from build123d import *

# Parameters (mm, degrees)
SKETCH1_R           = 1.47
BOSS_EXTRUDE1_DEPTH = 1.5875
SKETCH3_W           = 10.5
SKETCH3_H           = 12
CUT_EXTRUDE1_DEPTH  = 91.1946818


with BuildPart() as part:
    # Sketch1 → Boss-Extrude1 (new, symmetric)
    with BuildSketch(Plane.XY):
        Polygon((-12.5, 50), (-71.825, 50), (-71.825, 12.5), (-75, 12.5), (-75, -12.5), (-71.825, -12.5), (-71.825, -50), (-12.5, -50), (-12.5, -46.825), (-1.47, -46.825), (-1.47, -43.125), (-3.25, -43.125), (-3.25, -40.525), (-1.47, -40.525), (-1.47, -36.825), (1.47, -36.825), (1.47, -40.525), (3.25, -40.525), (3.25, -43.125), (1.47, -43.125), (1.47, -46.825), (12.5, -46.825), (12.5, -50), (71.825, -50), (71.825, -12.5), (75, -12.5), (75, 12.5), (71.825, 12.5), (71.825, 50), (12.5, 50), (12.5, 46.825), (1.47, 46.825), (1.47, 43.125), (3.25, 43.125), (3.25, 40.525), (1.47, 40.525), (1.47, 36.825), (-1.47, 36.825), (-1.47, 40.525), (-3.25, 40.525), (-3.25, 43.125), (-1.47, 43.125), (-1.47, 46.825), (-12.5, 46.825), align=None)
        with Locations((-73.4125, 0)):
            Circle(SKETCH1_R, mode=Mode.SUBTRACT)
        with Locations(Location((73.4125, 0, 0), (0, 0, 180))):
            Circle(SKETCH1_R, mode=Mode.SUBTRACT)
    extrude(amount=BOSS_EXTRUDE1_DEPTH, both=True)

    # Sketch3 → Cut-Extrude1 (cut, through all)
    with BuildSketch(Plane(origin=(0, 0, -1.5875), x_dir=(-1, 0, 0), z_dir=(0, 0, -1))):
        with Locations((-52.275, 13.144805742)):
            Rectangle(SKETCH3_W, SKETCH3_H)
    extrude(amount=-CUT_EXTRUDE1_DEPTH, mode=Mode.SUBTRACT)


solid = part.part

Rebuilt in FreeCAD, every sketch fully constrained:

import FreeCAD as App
import Part
import Sketcher

V = App.Vector
Q = App.Units.Quantity

doc = App.newDocument("Part")
params = doc.addObject("Spreadsheet::Sheet", "Params")
for row, (alias, value) in enumerate([
    ("sketch1_diameter", "2.94 mm"),
    ("sketch1_height", "25 mm"),
    ("sketch1_height2", "37.5 mm"),
    ("sketch1_height3", "3.7 mm"),
    ("sketch1_height4", "2.6 mm"),
    ("pad1_length", "3.175 mm"),
    ("sketch2_height", "12 mm"),
    ("sketch2_width", "10.5 mm"),
], start=1):
    params.set(f"A{row}", alias)
    params.set(f"B{row}", "=" + value)
    params.setAlias(f"B{row}", alias)

body = doc.addObject("PartDesign::Body", "Body")

# Sketch on XY plane
sketch1 = doc.addObject("Sketcher::SketchObject", "Sketch")
body.addObject(sketch1)
sketch1.AttachmentSupport = (doc.XY_Plane, [""])
sketch1.MapMode = "FlatFace"
sketch1.addGeometry(Part.LineSegment(V(-12.5, 50, 0), V(-71.825, 50, 0)), False)
sketch1.addGeometry(Part.LineSegment(V(-71.825, 50, 0), V(-71.825, 12.5, 0)), False)
sketch1.addGeometry(Part.LineSegment(V(-71.825, 12.5, 0), V(-75, 12.5, 0)), False)
sketch1.addGeometry(Part.LineSegment(V(-75, 12.5, 0), V(-75, -12.5, 0)), False)
sketch1.addGeometry(Part.LineSegment(V(-75, -12.5, 0), V(-71.825, -12.5, 0)), False)
sketch1.addGeometry(Part.LineSegment(V(-71.825, -12.5, 0), V(-71.825, -50, 0)), False)
sketch1.addGeometry(Part.LineSegment(V(-71.825, -50, 0), V(-12.5, -50, 0)), False)
sketch1.addGeometry(Part.LineSegment(V(-12.5, -50, 0), V(-12.5, -46.825, 0)), False)
sketch1.addGeometry(Part.LineSegment(V(-12.5, -46.825, 0), V(-1.47, -46.825, 0)), False)
sketch1.addGeometry(Part.LineSegment(V(-1.47, -46.825, 0), V(-1.47, -43.125, 0)), False)
sketch1.addGeometry(Part.LineSegment(V(-1.47, -43.125, 0), V(-3.25, -43.125, 0)), False)
sketch1.addGeometry(Part.LineSegment(V(-3.25, -43.125, 0), V(-3.25, -40.525, 0)), False)
sketch1.addGeometry(Part.LineSegment(V(-3.25, -40.525, 0), V(-1.47, -40.525, 0)), False)
sketch1.addGeometry(Part.LineSegment(V(-1.47, -40.525, 0), V(-1.47, -36.825, 0)), False)
sketch1.addGeometry(Part.LineSegment(V(-1.47, -36.825, 0), V(1.47, -36.825, 0)), False)
sketch1.addGeometry(Part.LineSegment(V(1.47, -36.825, 0), V(1.47, -40.525, 0)), False)
sketch1.addGeometry(Part.LineSegment(V(1.47, -40.525, 0), V(3.25, -40.525, 0)), False)
sketch1.addGeometry(Part.LineSegment(V(3.25, -40.525, 0), V(3.25, -43.125, 0)), False)
sketch1.addGeometry(Part.LineSegment(V(3.25, -43.125, 0), V(1.47, -43.125, 0)), False)
sketch1.addGeometry(Part.LineSegment(V(1.47, -43.125, 0), V(1.47, -46.825, 0)), False)
sketch1.addGeometry(Part.LineSegment(V(1.47, -46.825, 0), V(12.5, -46.825, 0)), False)
sketch1.addGeometry(Part.LineSegment(V(12.5, -46.825, 0), V(12.5, -50, 0)), False)
sketch1.addGeometry(Part.LineSegment(V(12.5, -50, 0), V(71.825, -50, 0)), False)
sketch1.addGeometry(Part.LineSegment(V(71.825, -50, 0), V(71.825, -12.5, 0)), False)
sketch1.addGeometry(Part.LineSegment(V(71.825, -12.5, 0), V(75, -12.5, 0)), False)
sketch1.addGeometry(Part.LineSegment(V(75, -12.5, 0), V(75, 12.5, 0)), False)
sketch1.addGeometry(Part.LineSegment(V(75, 12.5, 0), V(71.825, 12.5, 0)), False)
sketch1.addGeometry(Part.LineSegment(V(71.825, 12.5, 0), V(71.825, 50, 0)), False)
sketch1.addGeometry(Part.LineSegment(V(71.825, 50, 0), V(12.5, 50, 0)), False)
sketch1.addGeometry(Part.LineSegment(V(12.5, 50, 0), V(12.5, 46.825, 0)), False)
sketch1.addGeometry(Part.LineSegment(V(12.5, 46.825, 0), V(1.47, 46.825, 0)), False)
sketch1.addGeometry(Part.LineSegment(V(1.47, 46.825, 0), V(1.47, 43.125, 0)), False)
sketch1.addGeometry(Part.LineSegment(V(1.47, 43.125, 0), V(3.25, 43.125, 0)), False)
sketch1.addGeometry(Part.LineSegment(V(3.25, 43.125, 0), V(3.25, 40.525, 0)), False)
sketch1.addGeometry(Part.LineSegment(V(3.25, 40.525, 0), V(1.47, 40.525, 0)), False)
sketch1.addGeometry(Part.LineSegment(V(1.47, 40.525, 0), V(1.47, 36.825, 0)), False)
sketch1.addGeometry(Part.LineSegment(V(1.47, 36.825, 0), V(-1.47, 36.825, 0)), False)
sketch1.addGeometry(Part.LineSegment(V(-1.47, 36.825, 0), V(-1.47, 40.525, 0)), False)
sketch1.addGeometry(Part.LineSegment(V(-1.47, 40.525, 0), V(-3.25, 40.525, 0)), False)
sketch1.addGeometry(Part.LineSegment(V(-3.25, 40.525, 0), V(-3.25, 43.125, 0)), False)
sketch1.addGeometry(Part.LineSegment(V(-3.25, 43.125, 0), V(-1.47, 43.125, 0)), False)
sketch1.addGeometry(Part.LineSegment(V(-1.47, 43.125, 0), V(-1.47, 46.825, 0)), False)
sketch1.addGeometry(Part.LineSegment(V(-1.47, 46.825, 0), V(-12.5, 46.825, 0)), False)
sketch1.addGeometry(Part.LineSegment(V(-12.5, 46.825, 0), V(-12.5, 50, 0)), False)
sketch1.addGeometry(Part.Circle(V(-73.4125, 0, 0), V(0, 0, 1), 1.47), False)
sketch1.addGeometry(Part.Circle(V(73.4125, 0, 0), V(0, 0, 1), 1.47), False)
sketch1.addConstraint(Sketcher.Constraint("Coincident", 0, 2, 1, 1))
sketch1.addConstraint(Sketcher.Constraint("Coincident", 1, 2, 2, 1))
sketch1.addConstraint(Sketcher.Constraint("Coincident", 2, 2, 3, 1))
sketch1.addConstraint(Sketcher.Constraint("Coincident", 3, 2, 4, 1))
sketch1.addConstraint(Sketcher.Constraint("Coincident", 4, 2, 5, 1))
sketch1.addConstraint(Sketcher.Constraint("Coincident", 5, 2, 6, 1))
sketch1.addConstraint(Sketcher.Constraint("Coincident", 6, 2, 7, 1))
sketch1.addConstraint(Sketcher.Constraint("Coincident", 7, 2, 8, 1))
sketch1.addConstraint(Sketcher.Constraint("Coincident", 8, 2, 9, 1))
sketch1.addConstraint(Sketcher.Constraint("Coincident", 9, 2, 10, 1))
sketch1.addConstraint(Sketcher.Constraint("Coincident", 10, 2, 11, 1))
sketch1.addConstraint(Sketcher.Constraint("Coincident", 11, 2, 12, 1))
sketch1.addConstraint(Sketcher.Constraint("Coincident", 12, 2, 13, 1))
sketch1.addConstraint(Sketcher.Constraint("Coincident", 13, 2, 14, 1))
sketch1.addConstraint(Sketcher.Constraint("Coincident", 14, 2, 15, 1))
sketch1.addConstraint(Sketcher.Constraint("Coincident", 15, 2, 16, 1))
sketch1.addConstraint(Sketcher.Constraint("Coincident", 16, 2, 17, 1))
sketch1.addConstraint(Sketcher.Constraint("Coincident", 17, 2, 18, 1))
sketch1.addConstraint(Sketcher.Constraint("Coincident", 18, 2, 19, 1))
sketch1.addConstraint(Sketcher.Constraint("Coincident", 19, 2, 20, 1))
sketch1.addConstraint(Sketcher.Constraint("Coincident", 20, 2, 21, 1))
sketch1.addConstraint(Sketcher.Constraint("Coincident", 21, 2, 22, 1))
sketch1.addConstraint(Sketcher.Constraint("Coincident", 22, 2, 23, 1))
sketch1.addConstraint(Sketcher.Constraint("Coincident", 23, 2, 24, 1))
sketch1.addConstraint(Sketcher.Constraint("Coincident", 24, 2, 25, 1))
sketch1.addConstraint(Sketcher.Constraint("Coincident", 25, 2, 26, 1))
sketch1.addConstraint(Sketcher.Constraint("Coincident", 26, 2, 27, 1))
sketch1.addConstraint(Sketcher.Constraint("Coincident", 27, 2, 28, 1))
sketch1.addConstraint(Sketcher.Constraint("Coincident", 28, 2, 29, 1))
sketch1.addConstraint(Sketcher.Constraint("Coincident", 29, 2, 30, 1))
sketch1.addConstraint(Sketcher.Constraint("Coincident", 30, 2, 31, 1))
sketch1.addConstraint(Sketcher.Constraint("Coincident", 31, 2, 32, 1))
sketch1.addConstraint(Sketcher.Constraint("Coincident", 32, 2, 33, 1))
sketch1.addConstraint(Sketcher.Constraint("Coincident", 33, 2, 34, 1))
sketch1.addConstraint(Sketcher.Constraint("Coincident", 34, 2, 35, 1))
sketch1.addConstraint(Sketcher.Constraint("Coincident", 35, 2, 36, 1))
sketch1.addConstraint(Sketcher.Constraint("Coincident", 36, 2, 37, 1))
sketch1.addConstraint(Sketcher.Constraint("Coincident", 37, 2, 38, 1))
sketch1.addConstraint(Sketcher.Constraint("Coincident", 38, 2, 39, 1))
sketch1.addConstraint(Sketcher.Constraint("Coincident", 39, 2, 40, 1))
sketch1.addConstraint(Sketcher.Constraint("Coincident", 40, 2, 41, 1))
sketch1.addConstraint(Sketcher.Constraint("Coincident", 41, 2, 42, 1))
sketch1.addConstraint(Sketcher.Constraint("Coincident", 42, 2, 43, 1))
sketch1.addConstraint(Sketcher.Constraint("Coincident", 43, 2, 0, 1))
sketch1.addConstraint(Sketcher.Constraint("Horizontal", 0))
sketch1.addConstraint(Sketcher.Constraint("Vertical", 1))
sketch1.addConstraint(Sketcher.Constraint("Horizontal", 2))
sketch1.addConstraint(Sketcher.Constraint("Vertical", 3))
sketch1.addConstraint(Sketcher.Constraint("Horizontal", 4))
sketch1.addConstraint(Sketcher.Constraint("Vertical", 5))
sketch1.addConstraint(Sketcher.Constraint("Horizontal", 6))
sketch1.addConstraint(Sketcher.Constraint("Vertical", 7))
sketch1.addConstraint(Sketcher.Constraint("Horizontal", 8))
sketch1.addConstraint(Sketcher.Constraint("Vertical", 9))
sketch1.addConstraint(Sketcher.Constraint("Horizontal", 10))
sketch1.addConstraint(Sketcher.Constraint("Vertical", 11))
sketch1.addConstraint(Sketcher.Constraint("Horizontal", 12))
sketch1.addConstraint(Sketcher.Constraint("Vertical", 13))
sketch1.addConstraint(Sketcher.Constraint("Horizontal", 14))
sketch1.addConstraint(Sketcher.Constraint("Vertical", 15))
sketch1.addConstraint(Sketcher.Constraint("Horizontal", 16))
sketch1.addConstraint(Sketcher.Constraint("Vertical", 17))
sketch1.addConstraint(Sketcher.Constraint("Horizontal", 18))
sketch1.addConstraint(Sketcher.Constraint("Vertical", 19))
sketch1.addConstraint(Sketcher.Constraint("Horizontal", 20))
sketch1.addConstraint(Sketcher.Constraint("Vertical", 21))
sketch1.addConstraint(Sketcher.Constraint("Horizontal", 22))
sketch1.addConstraint(Sketcher.Constraint("Vertical", 23))
sketch1.addConstraint(Sketcher.Constraint("Horizontal", 24))
sketch1.addConstraint(Sketcher.Constraint("Vertical", 25))
sketch1.addConstraint(Sketcher.Constraint("Horizontal", 26))
sketch1.addConstraint(Sketcher.Constraint("Vertical", 27))
sketch1.addConstraint(Sketcher.Constraint("Horizontal", 28))
sketch1.addConstraint(Sketcher.Constraint("Vertical", 29))
sketch1.addConstraint(Sketcher.Constraint("Horizontal", 30))
sketch1.addConstraint(Sketcher.Constraint("Vertical", 31))
sketch1.addConstraint(Sketcher.Constraint("Horizontal", 32))
sketch1.addConstraint(Sketcher.Constraint("Vertical", 33))
sketch1.addConstraint(Sketcher.Constraint("Horizontal", 34))
sketch1.addConstraint(Sketcher.Constraint("Vertical", 35))
sketch1.addConstraint(Sketcher.Constraint("Horizontal", 36))
sketch1.addConstraint(Sketcher.Constraint("Vertical", 37))
sketch1.addConstraint(Sketcher.Constraint("Horizontal", 38))
sketch1.addConstraint(Sketcher.Constraint("Vertical", 39))
sketch1.addConstraint(Sketcher.Constraint("Horizontal", 40))
sketch1.addConstraint(Sketcher.Constraint("Vertical", 41))
sketch1.addConstraint(Sketcher.Constraint("Horizontal", 42))
sketch1.addConstraint(Sketcher.Constraint("Vertical", 43))
sketch1.addConstraint(Sketcher.Constraint("Equal", 44, 45))
sketch1.addConstraint(Sketcher.Constraint("Symmetric", 44, 3, 45, 3, -1, 1))
sketch1.addConstraint(Sketcher.Constraint("Symmetric", 0, 2, 22, 2, -1, 1))
sketch1.addConstraint(Sketcher.Constraint("Symmetric", 2, 2, 24, 2, -1, 1))
sketch1.addConstraint(Sketcher.Constraint("Symmetric", 4, 2, 26, 2, -1, 1))
sketch1.addConstraint(Sketcher.Constraint("Symmetric", 6, 2, 28, 2, -1, 1))
sketch1.addConstraint(Sketcher.Constraint("Symmetric", 8, 2, 30, 2, -1, 1))
sketch1.addConstraint(Sketcher.Constraint("Symmetric", 10, 2, 32, 2, -1, 1))
sketch1.addConstraint(Sketcher.Constraint("Symmetric", 12, 2, 34, 2, -1, 1))
sketch1.addConstraint(Sketcher.Constraint("Symmetric", 14, 2, 36, 2, -1, 1))
sketch1.addConstraint(Sketcher.Constraint("Symmetric", 16, 2, 38, 2, -1, 1))
sketch1.addConstraint(Sketcher.Constraint("Symmetric", 18, 2, 40, 2, -1, 1))
sketch1.addConstraint(Sketcher.Constraint("Symmetric", 20, 2, 42, 2, -1, 1))
sketch1.addConstraint(Sketcher.Constraint("Symmetric", 12, 2, 15, 2, -2))
sketch1.addConstraint(Sketcher.Constraint("Symmetric", 10, 2, 17, 2, -2))
sketch1.addConstraint(Sketcher.Constraint("Symmetric", 8, 2, 19, 2, -2))
sketch1.addConstraint(Sketcher.Constraint("Symmetric", 6, 2, 21, 2, -2))
sketch1.addConstraint(Sketcher.Constraint("Symmetric", 4, 2, 23, 2, -2))
sketch1.addConstraint(Sketcher.Constraint("PointOnObject", 44, 3, -1))
sketch1.addConstraint(Sketcher.Constraint("Vertical", 9, 2, 12, 2))
sketch1.addConstraint(Sketcher.Constraint("Equal", 26, 7))
sketch1.addConstraint(Sketcher.Constraint("Equal", 9, 13))
sketch1.addConstraint(Sketcher.Constraint("Diameter", 44, Q("2.94 mm")))
sketch1.addConstraint(Sketcher.Constraint("DistanceY", 3, 2, 3, 1, Q("25 mm")))
sketch1.addConstraint(Sketcher.Constraint("DistanceY", 1, 2, 1, 1, Q("37.5 mm")))
sketch1.addConstraint(Sketcher.Constraint("DistanceY", 9, 1, 9, 2, Q("3.7 mm")))
sketch1.addConstraint(Sketcher.Constraint("DistanceY", 11, 1, 11, 2, Q("2.6 mm")))
sketch1.addConstraint(Sketcher.Constraint("DistanceX", 2, 2, -1, 1, Q("75 mm")))
sketch1.addConstraint(Sketcher.Constraint("DistanceX", 8, 1, 8, 2, Q("11.03 mm")))
sketch1.addConstraint(Sketcher.Constraint("DistanceX", 10, 2, 10, 1, Q("1.78 mm")))
sketch1.addConstraint(Sketcher.Constraint("DistanceX", 14, 1, 14, 2, Q("2.94 mm")))
sketch1.addConstraint(Sketcher.Constraint("DistanceX", 0, 2, 0, 1, Q("59.325 mm")))
sketch1.addConstraint(Sketcher.Constraint("DistanceX", 44, 3, 45, 3, Q("146.825 mm")))
sketch1.setExpression("Constraints[110]", "Params.sketch1_diameter")
sketch1.setExpression("Constraints[111]", "Params.sketch1_height")
sketch1.setExpression("Constraints[112]", "Params.sketch1_height2")
sketch1.setExpression("Constraints[113]", "Params.sketch1_height3")
sketch1.setExpression("Constraints[114]", "Params.sketch1_height4")
pad1 = doc.addObject("PartDesign::Pad", "Pad")
body.addObject(pad1)
pad1.Profile = sketch1
pad1.setExpression("Length", "Params.pad1_length")
pad1.Midplane = True

# Sketch on XY plane
sketch2 = doc.addObject("Sketcher::SketchObject", "Sketch001")
body.addObject(sketch2)
sketch2.AttachmentSupport = (doc.XY_Plane, [""])
sketch2.MapMode = "FlatFace"
sketch2.AttachmentOffset = App.Placement(V(0, 0, -1.5875), App.Rotation())
sketch2.addGeometry(Part.LineSegment(V(57.525, 19.144806, 0), V(57.525, 7.144806, 0)), False)
sketch2.addGeometry(Part.LineSegment(V(57.525, 7.144806, 0), V(47.025, 7.144806, 0)), False)
sketch2.addGeometry(Part.LineSegment(V(47.025, 7.144806, 0), V(47.025, 19.144806, 0)), False)
sketch2.addGeometry(Part.LineSegment(V(47.025, 19.144806, 0), V(57.525, 19.144806, 0)), False)
sketch2.addConstraint(Sketcher.Constraint("Coincident", 0, 2, 1, 1))
sketch2.addConstraint(Sketcher.Constraint("Coincident", 1, 2, 2, 1))
sketch2.addConstraint(Sketcher.Constraint("Coincident", 2, 2, 3, 1))
sketch2.addConstraint(Sketcher.Constraint("Coincident", 3, 2, 0, 1))
sketch2.addConstraint(Sketcher.Constraint("Vertical", 0))
sketch2.addConstraint(Sketcher.Constraint("Horizontal", 1))
sketch2.addConstraint(Sketcher.Constraint("Vertical", 2))
sketch2.addConstraint(Sketcher.Constraint("Horizontal", 3))
sketch2.addConstraint(Sketcher.Constraint("DistanceY", 0, 2, 0, 1, Q("12 mm")))
sketch2.addConstraint(Sketcher.Constraint("DistanceX", 1, 2, 1, 1, Q("10.5 mm")))
sketch2.addConstraint(Sketcher.Constraint("DistanceX", -1, 1, 0, 2, Q("57.525 mm")))
sketch2.addConstraint(Sketcher.Constraint("DistanceY", -1, 1, 0, 2, Q("7.144806 mm")))
sketch2.setExpression("Constraints[8]", "Params.sketch2_height")
sketch2.setExpression("Constraints[9]", "Params.sketch2_width")
pocket1 = doc.addObject("PartDesign::Pocket", "Pocket")
body.addObject(pocket1)
pocket1.Profile = sketch2
pocket1.Type = "ThroughAll"
pocket1.Reversed = True

doc.recompute()
